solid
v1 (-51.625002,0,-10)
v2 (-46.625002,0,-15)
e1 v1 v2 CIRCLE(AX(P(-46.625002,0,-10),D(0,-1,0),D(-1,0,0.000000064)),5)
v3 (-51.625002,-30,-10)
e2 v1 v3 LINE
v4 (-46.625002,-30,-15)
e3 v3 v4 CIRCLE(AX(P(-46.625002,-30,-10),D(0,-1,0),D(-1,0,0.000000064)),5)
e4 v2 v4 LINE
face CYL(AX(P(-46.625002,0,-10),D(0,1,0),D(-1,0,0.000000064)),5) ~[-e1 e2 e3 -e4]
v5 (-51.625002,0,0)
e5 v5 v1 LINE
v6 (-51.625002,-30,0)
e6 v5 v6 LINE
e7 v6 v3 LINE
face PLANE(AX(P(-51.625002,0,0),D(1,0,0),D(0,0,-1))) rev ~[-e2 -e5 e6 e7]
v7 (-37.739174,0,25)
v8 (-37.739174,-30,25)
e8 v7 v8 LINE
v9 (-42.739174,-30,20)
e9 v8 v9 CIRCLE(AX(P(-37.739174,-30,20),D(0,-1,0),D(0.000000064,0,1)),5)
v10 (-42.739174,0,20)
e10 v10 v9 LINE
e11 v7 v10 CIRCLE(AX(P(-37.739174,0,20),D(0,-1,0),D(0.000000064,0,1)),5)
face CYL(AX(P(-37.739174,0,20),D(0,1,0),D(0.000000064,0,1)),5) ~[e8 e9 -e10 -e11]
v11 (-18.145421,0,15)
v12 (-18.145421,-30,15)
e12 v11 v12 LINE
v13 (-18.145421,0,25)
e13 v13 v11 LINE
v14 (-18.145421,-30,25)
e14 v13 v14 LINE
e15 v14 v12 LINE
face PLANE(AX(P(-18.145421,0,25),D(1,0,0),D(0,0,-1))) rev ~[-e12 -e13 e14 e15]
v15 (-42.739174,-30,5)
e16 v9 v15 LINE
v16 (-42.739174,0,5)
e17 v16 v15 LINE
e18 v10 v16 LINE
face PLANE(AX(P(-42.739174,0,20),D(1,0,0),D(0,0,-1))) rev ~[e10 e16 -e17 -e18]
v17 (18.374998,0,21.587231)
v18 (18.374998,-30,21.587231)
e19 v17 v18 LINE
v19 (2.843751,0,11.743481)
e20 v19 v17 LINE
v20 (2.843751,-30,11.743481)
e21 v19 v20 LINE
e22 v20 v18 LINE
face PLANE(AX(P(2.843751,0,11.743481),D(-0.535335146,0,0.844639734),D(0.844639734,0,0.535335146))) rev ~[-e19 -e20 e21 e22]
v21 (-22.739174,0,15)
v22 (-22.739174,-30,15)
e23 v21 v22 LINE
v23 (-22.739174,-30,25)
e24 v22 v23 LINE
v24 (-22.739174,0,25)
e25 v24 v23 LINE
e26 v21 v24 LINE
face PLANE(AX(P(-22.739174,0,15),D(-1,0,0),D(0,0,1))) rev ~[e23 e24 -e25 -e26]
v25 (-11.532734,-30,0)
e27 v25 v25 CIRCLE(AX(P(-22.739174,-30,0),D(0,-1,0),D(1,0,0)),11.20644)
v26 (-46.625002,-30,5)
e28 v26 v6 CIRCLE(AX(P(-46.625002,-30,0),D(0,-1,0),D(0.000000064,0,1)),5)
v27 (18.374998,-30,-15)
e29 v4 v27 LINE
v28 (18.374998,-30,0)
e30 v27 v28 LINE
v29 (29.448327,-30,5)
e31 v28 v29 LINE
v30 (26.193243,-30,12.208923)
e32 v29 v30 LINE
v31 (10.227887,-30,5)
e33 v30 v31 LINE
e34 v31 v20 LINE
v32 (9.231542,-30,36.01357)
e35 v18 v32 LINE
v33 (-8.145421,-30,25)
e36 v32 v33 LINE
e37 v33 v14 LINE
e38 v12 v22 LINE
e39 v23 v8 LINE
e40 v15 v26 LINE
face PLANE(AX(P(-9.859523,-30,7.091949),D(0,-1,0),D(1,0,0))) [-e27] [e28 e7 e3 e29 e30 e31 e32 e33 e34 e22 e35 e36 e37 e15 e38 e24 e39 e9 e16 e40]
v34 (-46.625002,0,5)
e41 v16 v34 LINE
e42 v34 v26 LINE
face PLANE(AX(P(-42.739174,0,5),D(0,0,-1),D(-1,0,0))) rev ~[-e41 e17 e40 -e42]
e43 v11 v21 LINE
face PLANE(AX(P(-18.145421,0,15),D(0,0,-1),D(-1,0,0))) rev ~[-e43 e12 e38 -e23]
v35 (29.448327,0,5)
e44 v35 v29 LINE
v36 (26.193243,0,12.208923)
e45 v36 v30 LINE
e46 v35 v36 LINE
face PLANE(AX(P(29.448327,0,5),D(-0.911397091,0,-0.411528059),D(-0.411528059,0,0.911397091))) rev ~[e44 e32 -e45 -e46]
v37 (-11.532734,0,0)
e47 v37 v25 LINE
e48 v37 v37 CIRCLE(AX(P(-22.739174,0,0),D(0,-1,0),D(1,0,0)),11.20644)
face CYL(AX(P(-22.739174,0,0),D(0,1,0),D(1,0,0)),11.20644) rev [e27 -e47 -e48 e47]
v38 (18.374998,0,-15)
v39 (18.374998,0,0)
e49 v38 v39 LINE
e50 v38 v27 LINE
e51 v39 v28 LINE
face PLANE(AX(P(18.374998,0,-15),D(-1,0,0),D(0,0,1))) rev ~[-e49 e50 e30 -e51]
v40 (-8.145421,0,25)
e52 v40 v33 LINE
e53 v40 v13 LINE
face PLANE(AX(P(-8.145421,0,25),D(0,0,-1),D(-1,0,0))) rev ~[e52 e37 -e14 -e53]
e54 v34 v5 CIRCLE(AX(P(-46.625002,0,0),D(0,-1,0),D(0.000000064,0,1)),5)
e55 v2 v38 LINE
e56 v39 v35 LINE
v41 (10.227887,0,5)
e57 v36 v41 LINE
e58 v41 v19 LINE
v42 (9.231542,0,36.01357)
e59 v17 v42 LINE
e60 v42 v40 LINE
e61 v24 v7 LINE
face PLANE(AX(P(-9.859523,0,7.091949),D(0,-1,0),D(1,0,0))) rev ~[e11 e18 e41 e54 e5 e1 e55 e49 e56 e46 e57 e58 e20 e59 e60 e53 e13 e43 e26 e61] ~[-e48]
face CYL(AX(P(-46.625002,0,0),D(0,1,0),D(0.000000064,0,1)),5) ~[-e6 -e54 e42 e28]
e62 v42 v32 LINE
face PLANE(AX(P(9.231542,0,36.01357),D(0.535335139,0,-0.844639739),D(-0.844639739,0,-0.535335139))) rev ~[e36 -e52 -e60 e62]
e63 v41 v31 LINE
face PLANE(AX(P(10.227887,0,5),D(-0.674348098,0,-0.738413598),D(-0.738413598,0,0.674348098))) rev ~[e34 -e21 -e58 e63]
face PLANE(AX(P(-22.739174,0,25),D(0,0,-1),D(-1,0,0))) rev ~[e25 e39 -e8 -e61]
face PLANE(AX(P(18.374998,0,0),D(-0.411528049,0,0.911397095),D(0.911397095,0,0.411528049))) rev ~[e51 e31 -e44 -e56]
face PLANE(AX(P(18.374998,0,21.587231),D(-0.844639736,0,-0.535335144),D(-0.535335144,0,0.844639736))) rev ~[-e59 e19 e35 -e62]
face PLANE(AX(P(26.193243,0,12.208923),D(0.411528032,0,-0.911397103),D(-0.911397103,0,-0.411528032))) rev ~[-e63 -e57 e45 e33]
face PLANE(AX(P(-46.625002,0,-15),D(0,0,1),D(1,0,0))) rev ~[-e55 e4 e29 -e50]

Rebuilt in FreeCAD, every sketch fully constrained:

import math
import FreeCAD as App
import Part
import Sketcher

V = App.Vector
Q = App.Units.Quantity

doc = App.newDocument("Part")
body = doc.addObject("PartDesign::Body", "Body")

# Sketch on XZ plane
sketch1 = body.newObject("Sketcher::SketchObject", "Sketch")
sketch1.AttachmentSupport = (doc.getObject("XZ_Plane"), [""])
sketch1.MapMode = "FlatFace"
sketch1.addGeometry([
    Part.LineSegment(V(-46.6, -15, 0), V(18.4, -15, 0)),  # 0
    Part.LineSegment(V(18.4, -15, 0), V(18.4, 0, 0)),  # 1
    Part.LineSegment(V(18.4, 0, 0), V(29.4, 5, 0)),  # 2
    Part.LineSegment(V(29.4, 5, 0), V(26.2, 12.2, 0)),  # 3
    Part.LineSegment(V(26.2, 12.2, 0), V(10.2, 5, 0)),  # 4
    Part.LineSegment(V(10.2, 5, 0), V(2.8, 11.7, 0)),  # 5
    Part.LineSegment(V(2.8, 11.7, 0), V(18.4, 21.6, 0)),  # 6
    Part.LineSegment(V(18.4, 21.6, 0), V(9.2, 36, 0)),  # 7
    Part.LineSegment(V(9.2, 36, 0), V(-8.1, 25, 0)),  # 8
    Part.LineSegment(V(-8.1, 25, 0), V(-18.1, 25, 0)),  # 9
    Part.LineSegment(V(-18.1, 25, 0), V(-18.1, 15, 0)),  # 10
    Part.LineSegment(V(-18.1, 15, 0), V(-22.7, 15, 0)),  # 11
    Part.LineSegment(V(-22.7, 15, 0), V(-22.7, 25, 0)),  # 12
    Part.LineSegment(V(-22.7, 25, 0), V(-37.7, 25, 0)),  # 13
    Part.ArcOfCircle(Part.Circle(V(-37.7, 20, 0), V(0, 0, 1), 5), math.radians(90), math.radians(180)),  # 14
    Part.LineSegment(V(-42.7, 20, 0), V(-42.7, 5, 0)),  # 15
    Part.LineSegment(V(-42.7, 5, 0), V(-46.6, 5, 0)),  # 16
    Part.ArcOfCircle(Part.Circle(V(-46.6, 0, 0), V(0, 0, 1), 5), math.radians(90), math.radians(180)),  # 17
    Part.LineSegment(V(-51.6, 0, 0), V(-51.6, -10, 0)),  # 18
    Part.ArcOfCircle(Part.Circle(V(-46.6, -10, 0), V(0, 0, 1), 5), math.radians(180), math.radians(270)),  # 19
    Part.Circle(V(-22.7, 0, 0), V(0, 0, 1), 11.2),  # 20
], False)
sketch1.addConstraint([
    Sketcher.Constraint("Coincident", 0, 2, 1, 1),
    Sketcher.Constraint("Coincident", 1, 2, 2, 1),
    Sketcher.Constraint("Coincident", 2, 2, 3, 1),
    Sketcher.Constraint("Coincident", 3, 2, 4, 1),
    Sketcher.Constraint("Coincident", 4, 2, 5, 1),
    Sketcher.Constraint("Coincident", 5, 2, 6, 1),
    Sketcher.Constraint("Coincident", 6, 2, 7, 1),
    Sketcher.Constraint("Coincident", 7, 2, 8, 1),
    Sketcher.Constraint("Coincident", 8, 2, 9, 1),
    Sketcher.Constraint("Coincident", 9, 2, 10, 1),
    Sketcher.Constraint("Coincident", 10, 2, 11, 1),
    Sketcher.Constraint("Coincident", 11, 2, 12, 1),
    Sketcher.Constraint("Coincident", 12, 2, 13, 1),
    Sketcher.Constraint("Tangent", 13, 2, 14, 1),
    Sketcher.Constraint("Tangent", 14, 2, 15, 1),
    Sketcher.Constraint("Coincident", 15, 2, 16, 1),
    Sketcher.Constraint("Tangent", 16, 2, 17, 1),
    Sketcher.Constraint("Tangent", 17, 2, 18, 1),
    Sketcher.Constraint("Tangent", 18, 2, 19, 1),
    Sketcher.Constraint("Tangent", 19, 2, 0, 1),
    Sketcher.Constraint("Horizontal", 0),
    Sketcher.Constraint("Vertical", 1),
    Sketcher.Constraint("Horizontal", 9),
    Sketcher.Constraint("Vertical", 10),
    Sketcher.Constraint("Horizontal", 11),
    Sketcher.Constraint("Vertical", 12),
    Sketcher.Constraint("Horizontal", 13),
    Sketcher.Constraint("Vertical", 15),
    Sketcher.Constraint("Horizontal", 16),
    Sketcher.Constraint("Vertical", 18),
    Sketcher.Constraint("Equal", 14, 17),
    Sketcher.Constraint("Equal", 17, 19),
    Sketcher.Constraint("PointOnObject", 17, 3, -1),
    Sketcher.Constraint("PointOnObject", 20, 3, -1),
    Sketcher.Constraint("PointOnObject", 1, 2, -1),
    Sketcher.Constraint("Perpendicular", 2, 3),
    Sketcher.Constraint("Perpendicular", 3, 4),
    Sketcher.Constraint("Perpendicular", 6, 7),
    Sketcher.Constraint("Perpendicular", 7, 8),
    Sketcher.Constraint("Horizontal", 2, 2, 4, 2),
    Sketcher.Constraint("Horizontal", 9, 2, 12, 2),
    Sketcher.Constraint("Horizontal", 4, 2, 15, 2),
    Sketcher.Constraint("Vertical", 1, 2, 6, 2),
    Sketcher.Constraint("Vertical", 20, 3, 11, 2),
    Sketcher.Constraint("Equal", 13, 1),
    Sketcher.Constraint("Equal", 9, 10),
    Sketcher.Constraint("Equal", 1, 15),
    Sketcher.Constraint("Equal", 12, 18),
    Sketcher.Constraint("Radius", 14, Q("5 mm")),
    Sketcher.Constraint("DistanceX", 0, 1, 0, 2, Q("65 mm")),
    Sketcher.Constraint("DistanceX", 9, 2, 9, 1, Q("10 mm")),
    Sketcher.Constraint("Distance", 5, Q("10 mm")),
    Sketcher.Constraint("Diameter", 20, Q("22.41288 mm")),
    Sketcher.Constraint("DistanceX", -1, 1, 0, 2, Q("18.374998 mm")),
    Sketcher.Constraint("DistanceX", 16, 2, 16, 1, Q("3.885828 mm")),
    Sketcher.Constraint("DistanceX", 20, 3, 2, 2, Q("52.187501 mm")),
    Sketcher.Constraint("DistanceX", 7, 2, 3, 2, Q("16.961701 mm")),
    Sketcher.Constraint("Distance", 3, Q("7.90975 mm")),
    Sketcher.Constraint("DistanceX", 11, 2, 11, 1, Q("4.593753 mm")),
    Sketcher.Constraint("DistanceX", -1, 1, 5, 2, Q("2.843751 mm")),
])
pad1 = body.newObject("PartDesign::Pad", "Pad")
pad1.Profile = sketch1
pad1.Length = 30

doc.recompute()
